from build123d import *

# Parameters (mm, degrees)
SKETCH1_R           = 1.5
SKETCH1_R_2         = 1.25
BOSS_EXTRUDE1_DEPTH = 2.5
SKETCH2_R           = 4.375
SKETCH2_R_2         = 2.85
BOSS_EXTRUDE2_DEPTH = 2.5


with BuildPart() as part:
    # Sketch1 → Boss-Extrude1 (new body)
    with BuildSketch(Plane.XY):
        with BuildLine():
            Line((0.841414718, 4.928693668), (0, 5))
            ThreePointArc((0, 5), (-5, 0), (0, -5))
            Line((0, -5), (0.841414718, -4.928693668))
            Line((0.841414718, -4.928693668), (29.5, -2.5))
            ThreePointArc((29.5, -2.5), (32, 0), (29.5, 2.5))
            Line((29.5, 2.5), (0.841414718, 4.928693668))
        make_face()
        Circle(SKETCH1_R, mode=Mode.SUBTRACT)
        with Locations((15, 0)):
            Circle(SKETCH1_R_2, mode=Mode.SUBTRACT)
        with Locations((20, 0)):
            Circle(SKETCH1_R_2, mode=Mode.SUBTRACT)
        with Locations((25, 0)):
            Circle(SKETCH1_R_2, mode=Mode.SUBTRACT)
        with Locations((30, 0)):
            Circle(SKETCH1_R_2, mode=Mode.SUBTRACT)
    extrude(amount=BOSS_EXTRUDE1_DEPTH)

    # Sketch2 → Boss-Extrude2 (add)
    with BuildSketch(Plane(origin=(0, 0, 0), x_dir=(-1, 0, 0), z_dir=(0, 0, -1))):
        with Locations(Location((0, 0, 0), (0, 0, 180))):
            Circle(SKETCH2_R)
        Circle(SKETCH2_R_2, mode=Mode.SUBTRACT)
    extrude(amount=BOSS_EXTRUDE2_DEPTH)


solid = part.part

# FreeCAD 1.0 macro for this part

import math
import FreeCAD as App
import Part
import Sketcher
from FreeCAD import Vector
Q = App.Units.Quantity

doc = App.newDocument("Part")
params = doc.addObject("Spreadsheet::Sheet", "Params")
for row, (alias, value) in enumerate([
    ("sketch1_diameter", "3 mm"),
    ("sketch1_radius", "5 mm"),
    ("sketch1_diameter2", "2.5 mm"),
    ("sketch1_radius2", "2.5 mm"),
    ("pad1_length", "2.5 mm"),
    ("sketch2_diameter", "5.7 mm"),
    ("sketch2_diameter2", "8.75 mm"),
    ("pad2_length", "2.5 mm"),
], start=1):
    params.set(f"A{row}", alias)
    params.set(f"B{row}", "=" + value)
    params.setAlias(f"B{row}", alias)

body = doc.addObject("PartDesign::Body", "Body")

# Sketch on XY plane
sketch1 = body.newObject("Sketcher::SketchObject", "Sketch")
sketch1.AttachmentSupport = (doc.getObject("XY_Plane"), [""])
sketch1.MapMode = "FlatFace"
sketch1.addGeometry([
    Part.LineSegment(Vector(0.841415, 4.928694, 0), Vector(0, 5, 0)),  # 0
    Part.ArcOfCircle(Part.Circle(Vector(0, 0, 0), Vector(0, 0, 1), 5), math.radians(90), math.radians(270)),  # 1
    Part.LineSegment(Vector(0, -5, 0), Vector(0.841415, -4.928694, 0)),  # 2
    Part.LineSegment(Vector(0.841415, -4.928694, 0), Vector(29.5, -2.5, 0)),  # 3
    Part.ArcOfCircle(Part.Circle(Vector(29.5, 0, 0), Vector(0, 0, 1), 2.5), math.radians(-90), math.radians(90)),  # 4
    Part.LineSegment(Vector(29.5, 2.5, 0), Vector(0.841415, 4.928694, 0)),  # 5
    Part.Circle(Vector(0, 0, 0), Vector(0, 0, 1), 1.5),  # 6
    Part.Circle(Vector(15, 0, 0), Vector(0, 0, 1), 1.25),  # 7
    Part.Circle(Vector(20, 0, 0), Vector(0, 0, 1), 1.25),  # 8
    Part.Circle(Vector(25, 0, 0), Vector(0, 0, 1), 1.25),  # 9
    Part.Circle(Vector(30, 0, 0), Vector(0, 0, 1), 1.25),  # 10
], False)
sketch1.addConstraint([
    Sketcher.Constraint("Coincident", 0, 2, 1, 1),
    Sketcher.Constraint("Coincident", 1, 2, 2, 1),
    Sketcher.Constraint("Coincident", 2, 2, 3, 1),
    Sketcher.Constraint("Coincident", 3, 2, 4, 1),
    Sketcher.Constraint("Coincident", 4, 2, 5, 1),
    Sketcher.Constraint("Coincident", 5, 2, 0, 1),
    Sketcher.Constraint("Coincident", 1, 3, -1, 1),
    Sketcher.Constraint("Coincident", 6, 3, -1, 1),
    Sketcher.Constraint("Equal", 7, 8),
    Sketcher.Constraint("Equal", 8, 9),
    Sketcher.Constraint("Equal", 9, 10),
    Sketcher.Constraint("Symmetric", 3, 2, 4, 2, -1),
    Sketcher.Constraint("Symmetric", 2, 2, 5, 2, -1),
    Sketcher.Constraint("PointOnObject", 7, 3, -1),
    Sketcher.Constraint("PointOnObject", 8, 3, -1),
    Sketcher.Constraint("PointOnObject", 9, 3, -1),
    Sketcher.Constraint("PointOnObject", 10, 3, -1),
    Sketcher.Constraint("PointOnObject", 0, 2, -2),
    Sketcher.Constraint("PointOnObject", 1, 2, -2),
    Sketcher.Constraint("Parallel", 2, 3),
    Sketcher.Constraint("Vertical", 4, 3, 3, 2),
    Sketcher.Constraint("Diameter", 6, Q("3 mm")),
    Sketcher.Constraint("Radius", 1, Q("5 mm")),
    Sketcher.Constraint("Diameter", 7, Q("2.5 mm")),
    Sketcher.Constraint("Radius", 4, Q("2.5 mm")),
    Sketcher.Constraint("DistanceX", -1, 1, 7, 3, Q("15 mm")),
    Sketcher.Constraint("DistanceX", -1, 1, 8, 3, Q("20 mm")),
    Sketcher.Constraint("DistanceX", -1, 1, 9, 3, Q("25 mm")),
    Sketcher.Constraint("DistanceX", -1, 1, 10, 3, Q("30 mm")),
    Sketcher.Constraint("DistanceX", -1, 1, 4, 3, Q("29.5 mm")),
    Sketcher.Constraint("Distance", 0, Q("0.844431 mm")),
])
sketch1.setExpression("Constraints[21]", "Params.sketch1_diameter")
sketch1.setExpression("Constraints[22]", "Params.sketch1_radius")
sketch1.setExpression("Constraints[23]", "Params.sketch1_diameter2")
sketch1.setExpression("Constraints[24]", "Params.sketch1_radius2")
pad1 = body.newObject("PartDesign::Pad", "Pad")
pad1.Profile = sketch1
pad1.setExpression("Length", "Params.pad1_length")

# Sketch on XY plane
sketch2 = body.newObject("Sketcher::SketchObject", "Sketch001")
sketch2.AttachmentSupport = (doc.getObject("XY_Plane"), [""])
sketch2.MapMode = "FlatFace"
sketch2.addGeometry([
    Part.Circle(Vector(0, 0, 0), Vector(0, 0, 1), 4.375),
    Part.Circle(Vector(0, 0, 0), Vector(0, 0, 1), 2.85),
], False)
sketch2.addConstraint([
    Sketcher.Constraint("Coincident", 0, 3, -1, 1),
    Sketcher.Constraint("Coincident", 1, 3, -1, 1),
    Sketcher.Constraint("Diameter", 1, Q("5.7 mm")),
    Sketcher.Constraint("Diameter", 0, Q("8.75 mm")),
])
sketch2.setExpression("Constraints[2]", "Params.sketch2_diameter")
sketch2.setExpression("Constraints[3]", "Params.sketch2_diameter2")
pad2 = body.newObject("PartDesign::Pad", "Pad001")
pad2.Profile = sketch2
pad2.setExpression("Length", "Params.pad2_length")
pad2.Reversed = True

doc.recompute()
